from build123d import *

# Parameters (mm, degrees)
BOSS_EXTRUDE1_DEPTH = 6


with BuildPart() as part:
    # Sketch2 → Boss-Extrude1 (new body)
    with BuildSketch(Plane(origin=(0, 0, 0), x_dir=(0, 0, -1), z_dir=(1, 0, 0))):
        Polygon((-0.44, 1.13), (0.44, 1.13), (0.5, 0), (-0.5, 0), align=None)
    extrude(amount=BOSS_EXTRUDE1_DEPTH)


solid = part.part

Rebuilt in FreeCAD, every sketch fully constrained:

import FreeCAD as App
import Part
import Sketcher
Q = App.Units.Quantity

doc = App.newDocument("Part")
body = doc.addObject("PartDesign::Body", "Body")

# Sketch on YZ plane
sketch1 = doc.addObject("Sketcher::SketchObject", "Sketch")
body.addObject(sketch1)
sketch1.AttachmentSupport = (doc.YZ_Plane, [""])
sketch1.MapMode = "FlatFace"
sketch1.addGeometry([
    Part.LineSegment(App.Vector(1.1, -0.4, 0), App.Vector(1.1, 0.4, 0)),
    Part.LineSegment(App.Vector(1.1, 0.4, 0), App.Vector(0, 0.5, 0)),
    Part.LineSegment(App.Vector(0, 0.5, 0), App.Vector(0, -0.5, 0)),
    Part.LineSegment(App.Vector(0, -0.5, 0), App.Vector(1.1, -0.4, 0)),
], False)
sketch1.addConstraint([
    Sketcher.Constraint("Coincident", 0, 2, 1, 1),
    Sketcher.Constraint("Coincident", 1, 2, 2, 1),
    Sketcher.Constraint("Coincident", 2, 2, 3, 1),
    Sketcher.Constraint("Coincident", 3, 2, 0, 1),
    Sketcher.Constraint("Vertical", 0),
    Sketcher.Constraint("Vertical", 2),
    Sketcher.Constraint("Symmetric", 1, 2, 2, 2, -1, 1),
    Sketcher.Constraint("Equal", 1, 3),
    Sketcher.Constraint("DistanceY", 2, 2, 2, 1, Q("1 mm")),
    Sketcher.Constraint("DistanceY", 0, 1, 0, 2, Q("0.88 mm")),
    Sketcher.Constraint("DistanceX", -1, 1, 0, 2, Q("1.13 mm")),
])
pad1 = doc.addObject("PartDesign::Pad", "Pad")
body.addObject(pad1)
pad1.Profile = sketch1
pad1.Length = 6

doc.recompute()
